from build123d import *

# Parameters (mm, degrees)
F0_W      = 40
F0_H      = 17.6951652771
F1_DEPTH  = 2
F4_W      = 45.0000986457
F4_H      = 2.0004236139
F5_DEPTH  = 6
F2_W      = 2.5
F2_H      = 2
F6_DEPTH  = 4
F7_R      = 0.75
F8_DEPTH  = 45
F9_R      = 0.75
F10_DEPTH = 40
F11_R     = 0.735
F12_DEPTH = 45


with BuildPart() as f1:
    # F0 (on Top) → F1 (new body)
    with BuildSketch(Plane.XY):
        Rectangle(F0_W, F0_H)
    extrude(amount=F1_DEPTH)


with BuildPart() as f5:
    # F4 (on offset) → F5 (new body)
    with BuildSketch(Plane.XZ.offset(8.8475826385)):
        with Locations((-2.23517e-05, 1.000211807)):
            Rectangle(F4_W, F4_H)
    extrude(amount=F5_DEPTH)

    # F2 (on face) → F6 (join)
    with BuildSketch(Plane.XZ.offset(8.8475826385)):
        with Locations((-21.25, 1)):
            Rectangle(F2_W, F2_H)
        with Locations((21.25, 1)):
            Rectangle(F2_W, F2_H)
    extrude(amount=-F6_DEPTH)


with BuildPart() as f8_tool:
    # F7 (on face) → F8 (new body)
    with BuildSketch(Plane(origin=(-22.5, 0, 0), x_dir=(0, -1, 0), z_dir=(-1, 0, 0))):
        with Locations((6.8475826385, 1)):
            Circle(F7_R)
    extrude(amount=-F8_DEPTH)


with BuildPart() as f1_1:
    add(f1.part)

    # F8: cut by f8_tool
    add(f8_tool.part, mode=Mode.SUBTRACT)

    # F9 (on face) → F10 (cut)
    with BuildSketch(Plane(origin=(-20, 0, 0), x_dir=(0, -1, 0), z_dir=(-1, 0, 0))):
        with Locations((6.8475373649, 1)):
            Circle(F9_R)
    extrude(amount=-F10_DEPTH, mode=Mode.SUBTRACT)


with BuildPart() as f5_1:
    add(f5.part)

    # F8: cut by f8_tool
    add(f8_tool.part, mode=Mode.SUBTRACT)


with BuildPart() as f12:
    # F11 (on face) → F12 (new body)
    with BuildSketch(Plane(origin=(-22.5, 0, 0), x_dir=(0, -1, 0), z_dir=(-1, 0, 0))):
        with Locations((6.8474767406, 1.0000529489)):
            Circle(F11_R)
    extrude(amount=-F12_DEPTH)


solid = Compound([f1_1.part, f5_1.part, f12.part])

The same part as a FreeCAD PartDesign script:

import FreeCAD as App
import Part
import Sketcher
from FreeCAD import Vector


def add_polygon(sketch, points):
    """Adds a closed chain of lines whose ends are joined by coincident constraints."""
    first, n = sketch.GeometryCount, len(points)
    for a, b in zip(points, points[1:] + points[:1]):
        sketch.addGeometry(Part.LineSegment(App.Vector(*a, 0), App.Vector(*b, 0)), False)
    for i in range(n):
        sketch.addConstraint(Sketcher.Constraint("Coincident", first + i, 2, first + (i + 1) % n, 1))

doc = App.newDocument("Part")
body = doc.addObject("PartDesign::Body", "Body")

# Sketch on XY plane
sketch1 = body.newObject("Sketcher::SketchObject", "Sketch")
sketch1.AttachmentSupport = (doc.getObject("XY_Plane"), [""])
sketch1.MapMode = "FlatFace"
add_polygon(sketch1, [(-20, 9), (-20, -9), (20, -9), (20, 9)])  # lines 0-3
sketch1.addConstraint(Sketcher.Constraint("Vertical", 0))
sketch1.addConstraint(Sketcher.Constraint("Horizontal", 1))
sketch1.addConstraint(Sketcher.Constraint("Vertical", 2))
sketch1.addConstraint(Sketcher.Constraint("Horizontal", 3))
sketch1.addConstraint(Sketcher.Constraint("Symmetric", 0, 2, 2, 2, -1, 1))
sketch1.addConstraint(Sketcher.Constraint("DistanceX", 1, 1, 1, 2, 40.0))
sketch1.addConstraint(Sketcher.Constraint("DistanceY", 0, 2, 0, 1, 17.695165))
pad1 = body.newObject("PartDesign::Pad", "Pad")
pad1.Profile = sketch1
pad1.Length = 2
body2 = doc.addObject("PartDesign::Body", "Body001")

# Sketch on XZ plane
sketch2 = body2.newObject("Sketcher::SketchObject", "Sketch001")
sketch2.AttachmentSupport = (doc.getObject("XZ_Plane001"), [""])
sketch2.MapMode = "FlatFace"
sketch2.AttachmentOffset = App.Placement(Vector(0, 0, 8.847583), App.Rotation())
add_polygon(sketch2, [(-22.500072, 2.000424), (-22.500072, 0), (22.500027, 0), (22.500027, 2.000424)])  # lines 0-3
sketch2.addConstraint(Sketcher.Constraint("Vertical", 0))
sketch2.addConstraint(Sketcher.Constraint("Horizontal", 1))
sketch2.addConstraint(Sketcher.Constraint("Vertical", 2))
sketch2.addConstraint(Sketcher.Constraint("Horizontal", 3))
sketch2.addConstraint(Sketcher.Constraint("PointOnObject", 0, 2, -1))
sketch2.addConstraint(Sketcher.Constraint("DistanceX", 1, 1, 1, 2, 45.000099))
sketch2.addConstraint(Sketcher.Constraint("DistanceY", 0, 2, 0, 1, 2.000424))
sketch2.addConstraint(Sketcher.Constraint("DistanceX", 0, 2, -1, 1, 22.500072))
pad2 = body2.newObject("PartDesign::Pad", "Pad001")
pad2.Profile = sketch2
pad2.Length = 6

# Sketch on XZ plane
sketch3 = body2.newObject("Sketcher::SketchObject", "Sketch002")
sketch3.AttachmentSupport = (doc.getObject("XZ_Plane001"), [""])
sketch3.MapMode = "FlatFace"
sketch3.AttachmentOffset = App.Placement(Vector(0, 0, 8.847583), App.Rotation())
add_polygon(sketch3, [(-22.5, 2), (-22.5, 0), (-20, 0), (-20, 2)])  # lines 0-3
add_polygon(sketch3, [(20, 2), (20, 0), (22.5, 0), (22.5, 2)])  # lines 4-7
sketch3.addConstraint(Sketcher.Constraint("Vertical", 0))
sketch3.addConstraint(Sketcher.Constraint("Horizontal", 1))
sketch3.addConstraint(Sketcher.Constraint("Vertical", 2))
sketch3.addConstraint(Sketcher.Constraint("Horizontal", 3))
sketch3.addConstraint(Sketcher.Constraint("Vertical", 4))
sketch3.addConstraint(Sketcher.Constraint("Horizontal", 5))
sketch3.addConstraint(Sketcher.Constraint("Vertical", 6))
sketch3.addConstraint(Sketcher.Constraint("Horizontal", 7))
sketch3.addConstraint(Sketcher.Constraint("Symmetric", 1, 2, 4, 2, -1, 1))
sketch3.addConstraint(Sketcher.Constraint("Symmetric", 0, 2, 5, 2, -2))
sketch3.addConstraint(Sketcher.Constraint("Horizontal", 3, 2, 6, 2))
sketch3.addConstraint(Sketcher.Constraint("DistanceY", 0, 2, 0, 1, 2.0))
sketch3.addConstraint(Sketcher.Constraint("DistanceX", 1, 1, 1, 2, 2.5))
sketch3.addConstraint(Sketcher.Constraint("DistanceX", 1, 2, -1, 1, 20.0))
pad3 = body2.newObject("PartDesign::Pad", "Pad002")
pad3.Profile = sketch3
pad3.Length = 4
pad3.Reversed = True
body3 = doc.addObject("PartDesign::Body", "Body002")

# Sketch on YZ plane
sketch4 = body3.newObject("Sketcher::SketchObject", "Sketch003")
sketch4.AttachmentSupport = (doc.getObject("YZ_Plane002"), [""])
sketch4.MapMode = "FlatFace"
sketch4.AttachmentOffset = App.Placement(Vector(0, 0, -22.5), App.Rotation())
sketch4.addGeometry(Part.Circle(Vector(-6.8, 1, 0), Vector(0, 0, 1), 0.8), False)
sketch4.addConstraint(Sketcher.Constraint("Diameter", 0, 1.5))
sketch4.addConstraint(Sketcher.Constraint("DistanceY", -1, 1, 0, 3, 1.0))
sketch4.addConstraint(Sketcher.Constraint("DistanceX", 0, 3, -1, 1, 6.847583))
pad4 = body3.newObject("PartDesign::Pad", "Pad003")
pad4.Profile = sketch4
pad4.Length = 45
doc.recompute()

body4 = doc.addObject("PartDesign::Body", "Body003")
body4.BaseFeature = body3
boolean = body.newObject("PartDesign::Boolean", "Boolean")
boolean.Type = "Cut"
boolean.addObjects([body4])
doc.recompute()

# Sketch on YZ plane
sketch5 = body.newObject("Sketcher::SketchObject", "Sketch004")
sketch5.AttachmentSupport = (doc.getObject("YZ_Plane"), [""])
sketch5.MapMode = "FlatFace"
sketch5.AttachmentOffset = App.Placement(Vector(0, 0, -20), App.Rotation())
sketch5.addGeometry(Part.Circle(Vector(-6.8, 1, 0), Vector(0, 0, 1), 0.8), False)
sketch5.addConstraint(Sketcher.Constraint("Diameter", 0, 1.5))
sketch5.addConstraint(Sketcher.Constraint("DistanceY", -1, 1, 0, 3, 1.0))
sketch5.addConstraint(Sketcher.Constraint("DistanceX", 0, 3, -1, 1, 6.847537))
pocket1 = body.newObject("PartDesign::Pocket", "Pocket")
pocket1.Profile = sketch5
pocket1.Length = 40
pocket1.Reversed = True
doc.recompute()

boolean2 = body2.newObject("PartDesign::Boolean", "Boolean001")
boolean2.Type = "Cut"
boolean2.addObjects([body3])
body5 = doc.addObject("PartDesign::Body", "Body004")

# Sketch on YZ plane
sketch6 = body5.newObject("Sketcher::SketchObject", "Sketch005")
sketch6.AttachmentSupport = (doc.getObject("YZ_Plane004"), [""])
sketch6.MapMode = "FlatFace"
sketch6.AttachmentOffset = App.Placement(Vector(0, 0, -22.5), App.Rotation())
sketch6.addGeometry(Part.Circle(Vector(-6.8, 1, 0), Vector(0, 0, 1), 0.7), False)
sketch6.addConstraint(Sketcher.Constraint("Diameter", 0, 1.47))
sketch6.addConstraint(Sketcher.Constraint("DistanceX", 0, 3, -1, 1, 6.847477))
sketch6.addConstraint(Sketcher.Constraint("DistanceY", -1, 1, 0, 3, 1.000053))
pad5 = body5.newObject("PartDesign::Pad", "Pad004")
pad5.Profile = sketch6
pad5.Length = 45

doc.recompute()
